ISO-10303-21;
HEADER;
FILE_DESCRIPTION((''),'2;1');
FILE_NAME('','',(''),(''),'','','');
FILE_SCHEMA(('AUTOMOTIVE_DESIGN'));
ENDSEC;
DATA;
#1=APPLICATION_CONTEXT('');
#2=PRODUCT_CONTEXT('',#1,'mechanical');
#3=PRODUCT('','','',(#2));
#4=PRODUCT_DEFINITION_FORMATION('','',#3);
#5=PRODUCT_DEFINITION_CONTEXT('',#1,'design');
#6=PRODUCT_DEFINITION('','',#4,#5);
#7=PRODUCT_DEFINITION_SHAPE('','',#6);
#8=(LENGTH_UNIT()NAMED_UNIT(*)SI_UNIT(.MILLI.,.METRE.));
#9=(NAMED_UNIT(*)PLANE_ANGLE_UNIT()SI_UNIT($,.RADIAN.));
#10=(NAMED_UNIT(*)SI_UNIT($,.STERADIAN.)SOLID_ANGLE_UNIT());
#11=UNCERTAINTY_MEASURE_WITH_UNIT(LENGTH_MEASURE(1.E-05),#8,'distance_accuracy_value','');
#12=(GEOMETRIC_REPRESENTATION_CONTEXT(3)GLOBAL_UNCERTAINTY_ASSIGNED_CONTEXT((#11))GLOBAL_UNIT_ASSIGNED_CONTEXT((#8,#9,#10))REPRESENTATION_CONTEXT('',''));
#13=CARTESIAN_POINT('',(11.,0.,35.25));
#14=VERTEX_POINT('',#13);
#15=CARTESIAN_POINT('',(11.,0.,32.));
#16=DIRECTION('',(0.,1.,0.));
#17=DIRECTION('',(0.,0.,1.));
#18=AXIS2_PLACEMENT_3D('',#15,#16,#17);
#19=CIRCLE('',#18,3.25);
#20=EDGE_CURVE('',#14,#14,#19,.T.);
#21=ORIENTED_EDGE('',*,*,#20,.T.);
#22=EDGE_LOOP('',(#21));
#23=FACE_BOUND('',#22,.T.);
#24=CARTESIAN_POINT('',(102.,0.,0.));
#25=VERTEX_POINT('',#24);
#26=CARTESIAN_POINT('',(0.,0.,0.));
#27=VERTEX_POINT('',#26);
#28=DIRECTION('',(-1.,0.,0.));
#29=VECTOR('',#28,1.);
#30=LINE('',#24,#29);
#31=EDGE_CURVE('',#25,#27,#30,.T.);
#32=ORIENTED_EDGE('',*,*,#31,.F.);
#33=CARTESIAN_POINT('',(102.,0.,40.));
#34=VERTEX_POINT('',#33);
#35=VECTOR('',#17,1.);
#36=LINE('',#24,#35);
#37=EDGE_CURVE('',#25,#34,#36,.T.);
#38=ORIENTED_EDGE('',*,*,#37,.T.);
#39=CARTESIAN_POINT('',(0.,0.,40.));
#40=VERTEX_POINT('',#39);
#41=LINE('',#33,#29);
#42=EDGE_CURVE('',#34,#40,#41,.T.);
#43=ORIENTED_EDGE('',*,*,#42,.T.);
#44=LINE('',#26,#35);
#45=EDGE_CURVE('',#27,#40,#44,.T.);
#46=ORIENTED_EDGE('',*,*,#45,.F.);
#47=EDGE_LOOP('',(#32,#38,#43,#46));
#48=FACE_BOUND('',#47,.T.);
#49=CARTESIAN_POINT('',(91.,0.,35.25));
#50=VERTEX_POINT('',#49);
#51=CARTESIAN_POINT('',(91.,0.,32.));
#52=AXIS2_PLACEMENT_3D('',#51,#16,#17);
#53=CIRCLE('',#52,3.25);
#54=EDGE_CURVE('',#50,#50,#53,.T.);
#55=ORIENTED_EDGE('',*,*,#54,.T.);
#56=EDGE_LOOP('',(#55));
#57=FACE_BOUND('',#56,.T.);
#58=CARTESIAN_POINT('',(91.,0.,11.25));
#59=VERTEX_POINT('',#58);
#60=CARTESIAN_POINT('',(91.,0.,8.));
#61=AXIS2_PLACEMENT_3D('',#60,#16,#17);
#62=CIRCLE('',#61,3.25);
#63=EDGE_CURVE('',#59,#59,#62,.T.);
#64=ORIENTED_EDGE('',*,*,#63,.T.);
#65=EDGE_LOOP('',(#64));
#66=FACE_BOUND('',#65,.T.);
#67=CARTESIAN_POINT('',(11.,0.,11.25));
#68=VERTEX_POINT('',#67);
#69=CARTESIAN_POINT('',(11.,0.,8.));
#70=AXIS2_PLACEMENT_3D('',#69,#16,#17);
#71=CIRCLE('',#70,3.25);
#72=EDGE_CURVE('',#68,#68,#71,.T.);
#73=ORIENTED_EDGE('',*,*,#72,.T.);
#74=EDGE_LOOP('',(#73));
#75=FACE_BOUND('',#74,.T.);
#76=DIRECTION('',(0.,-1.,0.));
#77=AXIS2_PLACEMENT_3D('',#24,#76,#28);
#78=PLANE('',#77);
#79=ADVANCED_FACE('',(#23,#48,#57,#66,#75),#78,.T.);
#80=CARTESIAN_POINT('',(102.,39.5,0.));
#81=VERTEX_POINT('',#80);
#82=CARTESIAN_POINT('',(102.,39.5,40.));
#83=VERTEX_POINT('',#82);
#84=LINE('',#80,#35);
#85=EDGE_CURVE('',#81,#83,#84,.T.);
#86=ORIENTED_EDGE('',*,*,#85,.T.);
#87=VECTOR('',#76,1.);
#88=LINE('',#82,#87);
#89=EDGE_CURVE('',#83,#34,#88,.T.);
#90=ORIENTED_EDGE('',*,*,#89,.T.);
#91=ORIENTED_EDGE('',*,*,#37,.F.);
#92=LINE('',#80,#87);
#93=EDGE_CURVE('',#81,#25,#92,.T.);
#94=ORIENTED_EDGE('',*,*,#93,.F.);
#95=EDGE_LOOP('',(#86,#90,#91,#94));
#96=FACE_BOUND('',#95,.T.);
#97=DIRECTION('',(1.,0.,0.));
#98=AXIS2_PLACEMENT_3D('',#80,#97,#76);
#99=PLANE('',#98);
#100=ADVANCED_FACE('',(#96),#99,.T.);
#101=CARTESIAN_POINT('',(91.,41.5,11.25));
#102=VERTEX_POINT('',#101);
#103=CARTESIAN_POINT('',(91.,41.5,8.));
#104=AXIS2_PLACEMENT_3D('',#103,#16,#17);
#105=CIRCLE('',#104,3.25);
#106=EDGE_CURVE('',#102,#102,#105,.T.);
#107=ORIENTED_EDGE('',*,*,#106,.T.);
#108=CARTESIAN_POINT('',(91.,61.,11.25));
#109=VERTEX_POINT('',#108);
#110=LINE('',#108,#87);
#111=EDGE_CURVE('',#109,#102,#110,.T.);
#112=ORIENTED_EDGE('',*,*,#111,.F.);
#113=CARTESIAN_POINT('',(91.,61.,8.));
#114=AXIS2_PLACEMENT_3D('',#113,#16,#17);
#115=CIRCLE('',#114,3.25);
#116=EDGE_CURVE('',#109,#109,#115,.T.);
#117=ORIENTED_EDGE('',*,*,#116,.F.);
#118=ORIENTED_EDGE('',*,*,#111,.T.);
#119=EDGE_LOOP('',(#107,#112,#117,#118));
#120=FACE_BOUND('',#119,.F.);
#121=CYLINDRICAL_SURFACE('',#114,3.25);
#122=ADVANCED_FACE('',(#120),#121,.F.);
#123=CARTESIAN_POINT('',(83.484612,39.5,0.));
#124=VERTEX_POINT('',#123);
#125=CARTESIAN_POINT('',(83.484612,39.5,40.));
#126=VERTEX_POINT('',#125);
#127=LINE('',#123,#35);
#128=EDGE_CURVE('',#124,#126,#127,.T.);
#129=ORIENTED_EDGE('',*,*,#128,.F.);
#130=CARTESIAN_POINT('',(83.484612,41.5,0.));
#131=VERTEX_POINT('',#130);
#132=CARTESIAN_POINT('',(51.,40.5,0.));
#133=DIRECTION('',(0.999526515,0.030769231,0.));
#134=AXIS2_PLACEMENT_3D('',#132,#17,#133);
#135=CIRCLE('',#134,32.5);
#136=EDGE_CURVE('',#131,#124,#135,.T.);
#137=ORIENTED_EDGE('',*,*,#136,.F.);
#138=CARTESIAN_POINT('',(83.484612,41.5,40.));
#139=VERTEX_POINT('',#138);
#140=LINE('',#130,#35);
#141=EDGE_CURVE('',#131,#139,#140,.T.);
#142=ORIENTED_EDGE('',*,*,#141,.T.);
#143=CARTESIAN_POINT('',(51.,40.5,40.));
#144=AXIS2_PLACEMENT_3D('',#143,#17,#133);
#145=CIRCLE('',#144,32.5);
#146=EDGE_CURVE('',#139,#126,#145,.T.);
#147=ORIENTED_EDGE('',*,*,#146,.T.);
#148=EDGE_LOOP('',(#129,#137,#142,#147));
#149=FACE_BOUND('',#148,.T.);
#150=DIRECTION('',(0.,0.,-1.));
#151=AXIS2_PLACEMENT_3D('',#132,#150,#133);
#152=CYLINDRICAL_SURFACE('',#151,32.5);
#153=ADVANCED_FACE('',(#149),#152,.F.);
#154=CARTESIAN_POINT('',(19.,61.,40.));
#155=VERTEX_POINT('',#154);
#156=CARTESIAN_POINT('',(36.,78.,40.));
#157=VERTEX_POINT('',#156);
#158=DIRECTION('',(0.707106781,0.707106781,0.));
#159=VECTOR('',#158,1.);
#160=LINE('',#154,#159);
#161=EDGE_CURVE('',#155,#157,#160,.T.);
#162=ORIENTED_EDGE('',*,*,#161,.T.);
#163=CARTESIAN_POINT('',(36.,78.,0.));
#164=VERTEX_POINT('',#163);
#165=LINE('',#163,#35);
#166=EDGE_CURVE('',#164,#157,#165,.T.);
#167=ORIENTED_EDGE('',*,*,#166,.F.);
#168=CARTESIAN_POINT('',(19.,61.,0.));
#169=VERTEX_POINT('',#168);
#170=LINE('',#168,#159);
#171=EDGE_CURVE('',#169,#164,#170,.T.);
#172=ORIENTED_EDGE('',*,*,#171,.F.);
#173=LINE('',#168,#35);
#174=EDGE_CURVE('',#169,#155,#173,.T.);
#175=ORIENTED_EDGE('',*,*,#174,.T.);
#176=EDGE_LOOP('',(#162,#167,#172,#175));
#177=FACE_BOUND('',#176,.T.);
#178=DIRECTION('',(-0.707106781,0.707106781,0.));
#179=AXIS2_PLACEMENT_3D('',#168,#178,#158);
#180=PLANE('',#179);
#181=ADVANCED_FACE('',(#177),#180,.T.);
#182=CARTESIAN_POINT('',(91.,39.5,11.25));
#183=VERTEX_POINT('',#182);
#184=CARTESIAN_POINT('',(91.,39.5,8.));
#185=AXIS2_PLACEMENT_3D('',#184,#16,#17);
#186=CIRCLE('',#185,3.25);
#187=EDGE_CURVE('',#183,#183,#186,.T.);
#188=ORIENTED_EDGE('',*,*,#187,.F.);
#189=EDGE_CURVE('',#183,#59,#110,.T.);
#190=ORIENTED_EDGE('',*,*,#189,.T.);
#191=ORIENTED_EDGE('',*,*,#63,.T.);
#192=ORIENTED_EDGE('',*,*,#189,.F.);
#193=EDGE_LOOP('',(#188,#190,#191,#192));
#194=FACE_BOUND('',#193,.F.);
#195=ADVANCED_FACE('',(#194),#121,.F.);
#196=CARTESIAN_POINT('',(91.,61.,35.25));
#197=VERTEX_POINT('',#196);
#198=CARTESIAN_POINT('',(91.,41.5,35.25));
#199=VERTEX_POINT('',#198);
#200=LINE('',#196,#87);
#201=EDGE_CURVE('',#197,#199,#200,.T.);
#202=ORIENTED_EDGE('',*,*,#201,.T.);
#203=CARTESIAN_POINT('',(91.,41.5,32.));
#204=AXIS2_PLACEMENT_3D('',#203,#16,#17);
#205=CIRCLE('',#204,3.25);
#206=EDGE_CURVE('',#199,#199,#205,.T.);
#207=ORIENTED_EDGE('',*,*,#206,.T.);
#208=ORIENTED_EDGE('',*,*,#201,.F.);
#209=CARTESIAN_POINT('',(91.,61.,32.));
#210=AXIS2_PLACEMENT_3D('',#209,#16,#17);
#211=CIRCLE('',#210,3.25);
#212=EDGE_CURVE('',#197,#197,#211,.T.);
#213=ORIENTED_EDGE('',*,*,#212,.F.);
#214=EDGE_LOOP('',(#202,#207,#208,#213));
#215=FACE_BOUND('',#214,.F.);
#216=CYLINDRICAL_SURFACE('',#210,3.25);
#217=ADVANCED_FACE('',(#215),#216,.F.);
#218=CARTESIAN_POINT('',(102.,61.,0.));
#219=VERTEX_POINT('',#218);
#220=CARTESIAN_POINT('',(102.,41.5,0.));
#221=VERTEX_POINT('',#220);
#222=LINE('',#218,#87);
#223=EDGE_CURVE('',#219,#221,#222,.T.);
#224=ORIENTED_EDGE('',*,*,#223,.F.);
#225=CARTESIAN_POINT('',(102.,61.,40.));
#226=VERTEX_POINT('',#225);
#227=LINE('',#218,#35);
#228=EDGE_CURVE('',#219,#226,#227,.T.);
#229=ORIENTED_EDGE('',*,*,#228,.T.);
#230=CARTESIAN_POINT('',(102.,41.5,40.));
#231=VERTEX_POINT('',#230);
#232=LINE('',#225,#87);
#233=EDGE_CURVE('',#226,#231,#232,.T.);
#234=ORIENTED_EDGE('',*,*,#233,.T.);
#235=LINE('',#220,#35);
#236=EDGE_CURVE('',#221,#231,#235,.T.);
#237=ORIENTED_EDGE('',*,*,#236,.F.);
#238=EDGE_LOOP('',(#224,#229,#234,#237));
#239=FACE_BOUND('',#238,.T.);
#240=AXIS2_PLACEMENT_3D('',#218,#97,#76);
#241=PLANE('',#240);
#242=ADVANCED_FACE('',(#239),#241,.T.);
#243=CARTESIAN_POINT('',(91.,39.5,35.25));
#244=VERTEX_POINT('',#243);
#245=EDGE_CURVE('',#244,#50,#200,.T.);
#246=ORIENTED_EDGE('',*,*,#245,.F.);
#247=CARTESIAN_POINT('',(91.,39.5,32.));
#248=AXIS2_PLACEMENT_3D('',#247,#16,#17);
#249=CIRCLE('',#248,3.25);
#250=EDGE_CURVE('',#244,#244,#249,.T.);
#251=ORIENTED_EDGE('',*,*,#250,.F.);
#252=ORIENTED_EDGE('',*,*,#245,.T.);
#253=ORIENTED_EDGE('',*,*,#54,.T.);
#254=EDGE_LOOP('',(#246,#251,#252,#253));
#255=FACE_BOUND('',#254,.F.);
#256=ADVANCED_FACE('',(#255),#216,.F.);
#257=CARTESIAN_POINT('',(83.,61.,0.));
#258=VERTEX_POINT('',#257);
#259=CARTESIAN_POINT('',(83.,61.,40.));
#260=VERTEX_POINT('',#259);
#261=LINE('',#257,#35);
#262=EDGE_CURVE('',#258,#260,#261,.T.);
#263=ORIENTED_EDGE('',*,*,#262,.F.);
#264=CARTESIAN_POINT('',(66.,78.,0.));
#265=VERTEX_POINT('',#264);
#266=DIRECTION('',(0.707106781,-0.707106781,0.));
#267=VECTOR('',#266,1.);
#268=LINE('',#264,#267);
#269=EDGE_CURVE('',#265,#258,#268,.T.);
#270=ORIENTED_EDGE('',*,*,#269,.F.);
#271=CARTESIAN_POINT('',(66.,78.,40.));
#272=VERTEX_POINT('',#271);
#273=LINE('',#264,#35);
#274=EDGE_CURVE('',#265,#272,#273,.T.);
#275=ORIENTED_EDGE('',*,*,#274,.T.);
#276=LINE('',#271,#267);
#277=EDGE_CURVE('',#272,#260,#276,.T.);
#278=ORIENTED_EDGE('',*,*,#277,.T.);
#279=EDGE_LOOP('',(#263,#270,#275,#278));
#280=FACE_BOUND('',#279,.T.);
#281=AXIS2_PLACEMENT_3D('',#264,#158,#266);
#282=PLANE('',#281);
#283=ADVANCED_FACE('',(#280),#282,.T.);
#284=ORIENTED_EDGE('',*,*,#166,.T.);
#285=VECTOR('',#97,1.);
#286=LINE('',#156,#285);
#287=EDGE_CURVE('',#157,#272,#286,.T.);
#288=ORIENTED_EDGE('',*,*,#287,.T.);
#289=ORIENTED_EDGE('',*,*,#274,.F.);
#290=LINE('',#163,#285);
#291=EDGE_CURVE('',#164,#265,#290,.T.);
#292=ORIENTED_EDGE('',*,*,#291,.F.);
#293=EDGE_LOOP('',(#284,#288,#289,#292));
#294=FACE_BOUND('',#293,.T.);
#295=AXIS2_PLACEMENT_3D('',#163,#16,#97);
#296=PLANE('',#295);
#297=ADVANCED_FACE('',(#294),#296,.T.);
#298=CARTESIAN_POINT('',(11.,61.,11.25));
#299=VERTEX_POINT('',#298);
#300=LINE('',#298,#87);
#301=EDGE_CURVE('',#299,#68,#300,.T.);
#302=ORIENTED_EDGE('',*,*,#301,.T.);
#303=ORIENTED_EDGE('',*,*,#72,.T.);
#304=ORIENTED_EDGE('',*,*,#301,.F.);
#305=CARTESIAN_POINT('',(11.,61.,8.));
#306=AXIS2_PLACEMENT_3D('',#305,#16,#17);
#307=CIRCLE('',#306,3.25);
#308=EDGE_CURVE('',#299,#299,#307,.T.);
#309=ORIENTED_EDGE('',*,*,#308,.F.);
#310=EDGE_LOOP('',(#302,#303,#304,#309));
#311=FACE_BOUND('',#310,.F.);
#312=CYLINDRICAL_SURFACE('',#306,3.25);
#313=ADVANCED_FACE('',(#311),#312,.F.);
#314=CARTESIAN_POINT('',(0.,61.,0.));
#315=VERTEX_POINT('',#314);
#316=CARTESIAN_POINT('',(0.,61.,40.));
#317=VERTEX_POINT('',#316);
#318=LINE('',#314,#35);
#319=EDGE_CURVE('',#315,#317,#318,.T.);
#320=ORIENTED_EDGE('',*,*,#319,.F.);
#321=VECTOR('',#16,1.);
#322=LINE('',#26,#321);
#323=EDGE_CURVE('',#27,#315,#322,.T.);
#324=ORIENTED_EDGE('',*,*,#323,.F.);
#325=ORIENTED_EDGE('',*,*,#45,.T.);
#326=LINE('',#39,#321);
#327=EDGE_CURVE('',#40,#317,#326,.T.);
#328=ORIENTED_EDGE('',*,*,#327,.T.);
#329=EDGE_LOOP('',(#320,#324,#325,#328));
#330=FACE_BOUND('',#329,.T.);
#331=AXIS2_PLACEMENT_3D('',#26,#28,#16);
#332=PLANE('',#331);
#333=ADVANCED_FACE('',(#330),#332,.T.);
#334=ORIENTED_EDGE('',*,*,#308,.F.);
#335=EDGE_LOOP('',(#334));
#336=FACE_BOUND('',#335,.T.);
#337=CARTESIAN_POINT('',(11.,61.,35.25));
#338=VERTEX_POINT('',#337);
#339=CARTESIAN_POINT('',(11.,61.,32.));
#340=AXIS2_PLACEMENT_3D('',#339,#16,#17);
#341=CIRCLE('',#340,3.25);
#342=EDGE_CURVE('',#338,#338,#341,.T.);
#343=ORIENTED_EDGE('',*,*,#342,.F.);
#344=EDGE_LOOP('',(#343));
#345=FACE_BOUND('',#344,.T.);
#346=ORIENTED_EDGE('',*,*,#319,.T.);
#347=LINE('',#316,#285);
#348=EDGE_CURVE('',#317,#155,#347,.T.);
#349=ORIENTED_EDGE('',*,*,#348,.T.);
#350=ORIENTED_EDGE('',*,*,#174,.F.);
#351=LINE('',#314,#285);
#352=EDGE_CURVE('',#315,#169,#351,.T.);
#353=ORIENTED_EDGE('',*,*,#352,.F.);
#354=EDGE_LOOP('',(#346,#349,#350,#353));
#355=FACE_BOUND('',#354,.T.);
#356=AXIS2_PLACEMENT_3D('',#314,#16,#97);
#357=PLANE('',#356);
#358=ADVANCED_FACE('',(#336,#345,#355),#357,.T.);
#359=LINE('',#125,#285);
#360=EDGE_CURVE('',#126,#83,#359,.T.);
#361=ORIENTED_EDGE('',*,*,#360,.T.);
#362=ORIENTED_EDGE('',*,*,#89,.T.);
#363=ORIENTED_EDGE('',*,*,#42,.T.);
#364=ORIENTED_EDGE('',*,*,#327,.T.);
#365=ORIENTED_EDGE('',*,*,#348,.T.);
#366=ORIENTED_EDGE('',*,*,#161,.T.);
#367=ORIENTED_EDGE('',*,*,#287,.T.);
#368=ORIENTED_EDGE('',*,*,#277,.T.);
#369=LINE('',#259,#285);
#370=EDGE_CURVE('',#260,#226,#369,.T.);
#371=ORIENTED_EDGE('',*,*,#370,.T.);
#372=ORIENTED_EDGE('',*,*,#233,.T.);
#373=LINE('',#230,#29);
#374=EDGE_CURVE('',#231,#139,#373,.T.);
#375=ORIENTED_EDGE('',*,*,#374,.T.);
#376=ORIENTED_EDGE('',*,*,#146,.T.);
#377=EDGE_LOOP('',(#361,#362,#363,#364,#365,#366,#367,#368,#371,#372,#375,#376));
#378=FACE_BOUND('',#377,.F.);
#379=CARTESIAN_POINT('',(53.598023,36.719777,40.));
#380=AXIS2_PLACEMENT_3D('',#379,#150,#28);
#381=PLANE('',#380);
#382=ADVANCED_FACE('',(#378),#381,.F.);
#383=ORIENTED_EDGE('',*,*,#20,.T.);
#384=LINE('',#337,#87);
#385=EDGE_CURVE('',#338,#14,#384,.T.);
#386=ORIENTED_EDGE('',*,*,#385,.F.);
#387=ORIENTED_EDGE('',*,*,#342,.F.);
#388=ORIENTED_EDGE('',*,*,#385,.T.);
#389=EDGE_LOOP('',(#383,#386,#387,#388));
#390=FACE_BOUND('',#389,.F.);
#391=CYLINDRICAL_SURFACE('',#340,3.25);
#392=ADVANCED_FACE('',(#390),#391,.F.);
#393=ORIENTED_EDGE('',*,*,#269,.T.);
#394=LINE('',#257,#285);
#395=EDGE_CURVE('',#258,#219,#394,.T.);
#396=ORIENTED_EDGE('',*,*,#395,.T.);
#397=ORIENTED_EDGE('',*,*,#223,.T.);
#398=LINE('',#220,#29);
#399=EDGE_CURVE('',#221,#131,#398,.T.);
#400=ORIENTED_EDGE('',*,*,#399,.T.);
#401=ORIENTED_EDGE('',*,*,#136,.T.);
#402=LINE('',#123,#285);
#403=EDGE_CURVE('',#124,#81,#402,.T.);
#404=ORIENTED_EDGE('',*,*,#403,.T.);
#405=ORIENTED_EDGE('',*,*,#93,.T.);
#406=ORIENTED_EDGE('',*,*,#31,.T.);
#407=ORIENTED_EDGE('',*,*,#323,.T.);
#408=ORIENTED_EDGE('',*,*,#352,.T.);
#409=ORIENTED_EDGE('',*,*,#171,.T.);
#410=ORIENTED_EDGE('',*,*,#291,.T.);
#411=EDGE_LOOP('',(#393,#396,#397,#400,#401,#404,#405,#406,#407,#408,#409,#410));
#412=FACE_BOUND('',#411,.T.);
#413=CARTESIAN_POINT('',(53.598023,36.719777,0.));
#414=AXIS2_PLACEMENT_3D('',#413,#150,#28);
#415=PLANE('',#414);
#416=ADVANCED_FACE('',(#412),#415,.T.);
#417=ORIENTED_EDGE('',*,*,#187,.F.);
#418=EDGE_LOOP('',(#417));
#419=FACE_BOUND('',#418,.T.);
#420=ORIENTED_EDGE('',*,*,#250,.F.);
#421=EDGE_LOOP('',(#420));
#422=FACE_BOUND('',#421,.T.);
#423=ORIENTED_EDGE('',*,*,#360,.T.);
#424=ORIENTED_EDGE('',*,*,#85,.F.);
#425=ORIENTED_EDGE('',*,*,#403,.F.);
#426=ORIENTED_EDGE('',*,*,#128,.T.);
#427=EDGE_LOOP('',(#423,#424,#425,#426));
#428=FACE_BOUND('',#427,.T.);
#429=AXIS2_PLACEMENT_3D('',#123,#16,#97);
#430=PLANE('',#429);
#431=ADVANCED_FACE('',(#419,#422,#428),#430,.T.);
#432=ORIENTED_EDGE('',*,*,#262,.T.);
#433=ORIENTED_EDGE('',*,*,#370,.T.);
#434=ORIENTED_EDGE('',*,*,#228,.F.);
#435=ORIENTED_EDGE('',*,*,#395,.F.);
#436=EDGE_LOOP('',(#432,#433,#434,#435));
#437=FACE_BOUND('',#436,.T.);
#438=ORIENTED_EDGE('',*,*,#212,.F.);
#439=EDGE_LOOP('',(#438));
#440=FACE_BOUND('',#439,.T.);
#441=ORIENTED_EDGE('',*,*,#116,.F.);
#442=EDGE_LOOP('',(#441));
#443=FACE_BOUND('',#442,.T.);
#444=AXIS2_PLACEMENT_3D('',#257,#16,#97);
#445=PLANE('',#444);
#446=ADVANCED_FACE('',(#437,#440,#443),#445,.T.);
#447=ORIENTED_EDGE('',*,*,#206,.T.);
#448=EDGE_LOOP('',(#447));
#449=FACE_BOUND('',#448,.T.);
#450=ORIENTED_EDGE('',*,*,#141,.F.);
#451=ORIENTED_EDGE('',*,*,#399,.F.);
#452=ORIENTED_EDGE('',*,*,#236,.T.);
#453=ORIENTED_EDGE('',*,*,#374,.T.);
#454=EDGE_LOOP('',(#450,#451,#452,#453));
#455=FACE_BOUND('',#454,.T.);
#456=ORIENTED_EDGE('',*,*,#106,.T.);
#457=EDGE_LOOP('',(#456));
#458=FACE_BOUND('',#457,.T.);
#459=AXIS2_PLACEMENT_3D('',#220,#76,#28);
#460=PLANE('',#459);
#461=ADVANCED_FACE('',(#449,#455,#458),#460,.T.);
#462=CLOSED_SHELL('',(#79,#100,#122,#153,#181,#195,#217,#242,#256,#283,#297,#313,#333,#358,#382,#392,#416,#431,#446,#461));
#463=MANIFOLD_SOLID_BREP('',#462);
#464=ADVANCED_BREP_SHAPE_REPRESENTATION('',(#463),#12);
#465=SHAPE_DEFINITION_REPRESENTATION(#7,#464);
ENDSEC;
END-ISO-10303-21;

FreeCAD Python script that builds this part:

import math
import FreeCAD as App
import Part
import Sketcher
from FreeCAD import Vector

doc = App.newDocument("Part")
body = doc.addObject("PartDesign::Body", "Body")

sketch1 = body.newObject("Sketcher::SketchObject", "Sketch")
sketch1.AttachmentSupport = (doc.getObject("XY_Plane"), [""])
sketch1.MapMode = "FlatFace"
sketch1.addGeometry([
    Part.LineSegment(Vector(19, 61, 0), Vector(0, 61, 0)),
    Part.LineSegment(Vector(0, 61, 0), Vector(0, 0, 0)),
    Part.LineSegment(Vector(0, 0, 0), Vector(102, 0, 0)),
    Part.LineSegment(Vector(102, 0, 0), Vector(102, 39.5, 0)),
    Part.LineSegment(Vector(102, 39.5, 0), Vector(83.5, 39.5, 0)),
    Part.ArcOfCircle(Part.Circle(Vector(51, 40.5, 0), Vector(0, 0, 1), 32.5), math.radians(2), math.radians(358)),
    Part.LineSegment(Vector(83.5, 41.5, 0), Vector(102, 41.5, 0)),
    Part.LineSegment(Vector(102, 41.5, 0), Vector(102, 61, 0)),
    Part.LineSegment(Vector(102, 61, 0), Vector(83, 61, 0)),
    Part.LineSegment(Vector(83, 61, 0), Vector(66, 78, 0)),
    Part.LineSegment(Vector(66, 78, 0), Vector(36, 78, 0)),
    Part.LineSegment(Vector(36, 78, 0), Vector(19, 61, 0)),
], False)
sketch1.addConstraint([
    Sketcher.Constraint("Coincident", 0, 2, 1, 1),
    Sketcher.Constraint("Coincident", 1, 2, 2, 1),
    Sketcher.Constraint("Coincident", 2, 2, 3, 1),
    Sketcher.Constraint("Coincident", 3, 2, 4, 1),
    Sketcher.Constraint("Coincident", 4, 2, 5, 2),
    Sketcher.Constraint("Coincident", 5, 1, 6, 1),
    Sketcher.Constraint("Coincident", 6, 2, 7, 1),
    Sketcher.Constraint("Coincident", 7, 2, 8, 1),
    Sketcher.Constraint("Coincident", 8, 2, 9, 1),
    Sketcher.Constraint("Coincident", 9, 2, 10, 1),
    Sketcher.Constraint("Coincident", 10, 2, 11, 1),
    Sketcher.Constraint("Coincident", 11, 2, 0, 1),
    Sketcher.Constraint("Horizontal", 0),
    Sketcher.Constraint("Vertical", 1),
    Sketcher.Constraint("Horizontal", 2),
    Sketcher.Constraint("Vertical", 3),
    Sketcher.Constraint("Horizontal", 4),
    Sketcher.Constraint("Horizontal", 6),
    Sketcher.Constraint("Vertical", 7),
    Sketcher.Constraint("Horizontal", 8),
    Sketcher.Constraint("Horizontal", 10),
    Sketcher.Constraint("Coincident", 1, 2, -1, 1),
    Sketcher.Constraint("Perpendicular", 9, 11),
    Sketcher.Constraint("Horizontal", 0, 2, 7, 2),
    Sketcher.Constraint("Vertical", 4, 2, 5, 1),
    Sketcher.Constraint("Vertical", 3, 2, 6, 2),
    Sketcher.Constraint("Equal", 0, 8),
    Sketcher.Constraint("Equal", 9, 11),
    Sketcher.Constraint("Radius", 5, 32.5),
    Sketcher.Constraint("DistanceX", 0, 2, 0, 1, 19.0),
    Sketcher.Constraint("DistanceX", 2, 1, 2, 2, 102.0),
    Sketcher.Constraint("DistanceX", 10, 2, 10, 1, 30.0),
    Sketcher.Constraint("DistanceY", 1, 2, 1, 1, 61.0),
    Sketcher.Constraint("DistanceY", 3, 1, 3, 2, 39.5),
    Sketcher.Constraint("DistanceY", 7, 1, 7, 2, 19.5),
    Sketcher.Constraint("DistanceX", -1, 1, 5, 3, 51.0),
])
pad1 = body.newObject("PartDesign::Pad", "Pad")
pad1.Profile = sketch1
pad1.Length = 40

sketch2 = body.newObject("Sketcher::SketchObject", "Sketch001")
sketch2.AttachmentSupport = (doc.getObject("XZ_Plane"), [""])
sketch2.MapMode = "FlatFace"
sketch2.AttachmentOffset = App.Placement(Vector(0, 0, -61), App.Rotation())
sketch2.addGeometry([
    Part.Circle(Vector(11, 8, 0), Vector(0, 0, 1), 3.2),
    Part.Circle(Vector(11, 32, 0), Vector(0, 0, 1), 3.2),
    Part.Circle(Vector(91, 8, 0), Vector(0, 0, 1), 3.2),
    Part.Circle(Vector(91, 32, 0), Vector(0, 0, 1), 3.2),
], False)
sketch2.addConstraint([
    Sketcher.Constraint("Equal", 0, 1),
    Sketcher.Constraint("Equal", 1, 2),
    Sketcher.Constraint("Equal", 2, 3),
    Sketcher.Constraint("Horizontal", 0, 3, 2, 3),
    Sketcher.Constraint("Horizontal", 1, 3, 3, 3),
    Sketcher.Constraint("Vertical", 0, 3, 1, 3),
    Sketcher.Constraint("Vertical", 2, 3, 3, 3),
    Sketcher.Constraint("Diameter", 0, 6.5),
    Sketcher.Constraint("DistanceX", -1, 1, 0, 3, 11.0),
    Sketcher.Constraint("DistanceY", -1, 1, 0, 3, 8.0),
    Sketcher.Constraint("DistanceY", -1, 1, 1, 3, 32.0),
    Sketcher.Constraint("DistanceX", -1, 1, 2, 3, 91.0),
])
pocket1 = body.newObject("PartDesign::Pocket", "Pocket")
pocket1.Profile = sketch2
pocket1.Type = "ThroughAll"
pocket1.Reversed = True

doc.recompute()
